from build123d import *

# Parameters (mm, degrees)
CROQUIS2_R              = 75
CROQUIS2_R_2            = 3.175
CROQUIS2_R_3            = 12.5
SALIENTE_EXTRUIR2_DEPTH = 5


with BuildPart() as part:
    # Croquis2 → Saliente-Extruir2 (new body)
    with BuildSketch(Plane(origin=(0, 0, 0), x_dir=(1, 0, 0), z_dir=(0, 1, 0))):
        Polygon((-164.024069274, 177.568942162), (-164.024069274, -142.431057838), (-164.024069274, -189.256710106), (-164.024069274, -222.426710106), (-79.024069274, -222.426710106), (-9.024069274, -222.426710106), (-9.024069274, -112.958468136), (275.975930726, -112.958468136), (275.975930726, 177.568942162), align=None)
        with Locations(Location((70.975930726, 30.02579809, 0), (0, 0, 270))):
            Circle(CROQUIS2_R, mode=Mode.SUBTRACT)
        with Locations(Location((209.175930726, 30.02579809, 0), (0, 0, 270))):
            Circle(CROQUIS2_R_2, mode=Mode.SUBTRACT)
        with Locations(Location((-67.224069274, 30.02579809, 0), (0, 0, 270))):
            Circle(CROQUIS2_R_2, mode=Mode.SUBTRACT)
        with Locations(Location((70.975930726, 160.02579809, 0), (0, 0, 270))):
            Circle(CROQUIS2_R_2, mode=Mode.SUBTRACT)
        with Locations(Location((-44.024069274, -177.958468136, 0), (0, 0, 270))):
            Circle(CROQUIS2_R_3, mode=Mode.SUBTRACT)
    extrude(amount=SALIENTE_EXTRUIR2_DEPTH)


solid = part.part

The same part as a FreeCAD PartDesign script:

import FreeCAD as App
import Part
import Sketcher

V = App.Vector


def add_polygon(sketch, points):
    """Adds a closed chain of lines whose ends are joined by coincident constraints."""
    first, n = sketch.GeometryCount, len(points)
    for a, b in zip(points, points[1:] + points[:1]):
        sketch.addGeometry(Part.LineSegment(App.Vector(*a, 0), App.Vector(*b, 0)), False)
    for i in range(n):
        sketch.addConstraint(Sketcher.Constraint("Coincident", first + i, 2, first + (i + 1) % n, 1))

doc = App.newDocument("Part")
params = doc.addObject("Spreadsheet::Sheet", "Params")
for row, (alias, value) in enumerate([
    ("sketch1_diameter", "25 mm"),
    ("sketch1_diameter2", "150 mm"),
    ("sketch1_diameter3", "6.35 mm"),
    ("sketch1_width", "155 mm"),
    ("sketch1_width2", "285 mm"),
    ("pad1_length", "5 mm"),
], start=1):
    params.set(f"A{row}", alias)
    params.set(f"B{row}", "=" + value)
    params.setAlias(f"B{row}", alias)

body = doc.addObject("PartDesign::Body", "Body")

sketch1 = body.newObject("Sketcher::SketchObject", "Sketch")
sketch1.AttachmentSupport = (doc.getObject("XZ_Plane"), [""])
sketch1.MapMode = "FlatFace"
add_polygon(sketch1, [(-164, -177.6), (-164, 222.4), (-9, 222.4), (-9, 113), (276, 113), (276, -177.6)])
sketch1.addGeometry(Part.Circle(V(-44, 178, 0), V(0, 0, 1), 12.5), False)
sketch1.addGeometry(Part.Circle(V(-67.2, -30, 0), V(0, 0, 1), 3.2), False)
sketch1.addGeometry(Part.Circle(V(71, -30, 0), V(0, 0, 1), 75), False)
sketch1.addGeometry(Part.Circle(V(209.2, -30, 0), V(0, 0, 1), 3.2), False)
sketch1.addGeometry(Part.Circle(V(71, -160, 0), V(0, 0, 1), 3.2), False)
sketch1.addConstraint(Sketcher.Constraint("Vertical", 0))
sketch1.addConstraint(Sketcher.Constraint("Horizontal", 1))
sketch1.addConstraint(Sketcher.Constraint("Vertical", 2))
sketch1.addConstraint(Sketcher.Constraint("Horizontal", 3))
sketch1.addConstraint(Sketcher.Constraint("Vertical", 4))
sketch1.addConstraint(Sketcher.Constraint("Horizontal", 5))
sketch1.addConstraint(Sketcher.Constraint("Equal", 7, 9))
sketch1.addConstraint(Sketcher.Constraint("Equal", 9, 10))
sketch1.addConstraint(Sketcher.Constraint("Horizontal", 7, 3, 8, 3))
sketch1.addConstraint(Sketcher.Constraint("Horizontal", 8, 3, 9, 3))
sketch1.addConstraint(Sketcher.Constraint("Vertical", 8, 3, 10, 3))
sketch1.addConstraint(Sketcher.Constraint("Diameter", 6, 25.0))
sketch1.addConstraint(Sketcher.Constraint("Diameter", 8, 150.0))
sketch1.addConstraint(Sketcher.Constraint("Diameter", 7, 6.35))
sketch1.addConstraint(Sketcher.Constraint("DistanceX", 1, 1, 1, 2, 155.0))
sketch1.addConstraint(Sketcher.Constraint("DistanceX", 3, 1, 3, 2, 285.0))
sketch1.addConstraint(Sketcher.Constraint("DistanceX", 6, 3, 8, 3, 115.0))
sketch1.addConstraint(Sketcher.Constraint("DistanceY", 10, 3, 8, 3, 130.0))
sketch1.addConstraint(Sketcher.Constraint("DistanceX", 0, 2, 6, 3, 120.0))
sketch1.addConstraint(Sketcher.Constraint("DistanceY", 2, 2, 6, 3, 65.0))
sketch1.addConstraint(Sketcher.Constraint("DistanceX", 7, 3, 6, 3, 23.2))
sketch1.addConstraint(Sketcher.Constraint("DistanceX", 8, 3, 9, 3, 138.2))
sketch1.addConstraint(Sketcher.Constraint("DistanceY", 2, 2, 2, 1, 109.468242))
sketch1.addConstraint(Sketcher.Constraint("DistanceY", 4, 2, 4, 1, 290.52741))
sketch1.addConstraint(Sketcher.Constraint("DistanceY", 7, 3, -1, 1, 30.025798))
sketch1.addConstraint(Sketcher.Constraint("DistanceX", 6, 3, -1, 1, 44.024069))
sketch1.addConstraint(Sketcher.Constraint("DistanceY", -1, 1, 6, 3, 177.958468))
sketch1.setExpression("Constraints[17]", "Params.sketch1_diameter")
sketch1.setExpression("Constraints[18]", "Params.sketch1_diameter2")
sketch1.setExpression("Constraints[19]", "Params.sketch1_diameter3")
sketch1.setExpression("Constraints[20]", "Params.sketch1_width")
sketch1.setExpression("Constraints[21]", "Params.sketch1_width2")
pad1 = body.newObject("PartDesign::Pad", "Pad")
pad1.Profile = sketch1
pad1.setExpression("Length", "Params.pad1_length")
pad1.Reversed = True

doc.recompute()
